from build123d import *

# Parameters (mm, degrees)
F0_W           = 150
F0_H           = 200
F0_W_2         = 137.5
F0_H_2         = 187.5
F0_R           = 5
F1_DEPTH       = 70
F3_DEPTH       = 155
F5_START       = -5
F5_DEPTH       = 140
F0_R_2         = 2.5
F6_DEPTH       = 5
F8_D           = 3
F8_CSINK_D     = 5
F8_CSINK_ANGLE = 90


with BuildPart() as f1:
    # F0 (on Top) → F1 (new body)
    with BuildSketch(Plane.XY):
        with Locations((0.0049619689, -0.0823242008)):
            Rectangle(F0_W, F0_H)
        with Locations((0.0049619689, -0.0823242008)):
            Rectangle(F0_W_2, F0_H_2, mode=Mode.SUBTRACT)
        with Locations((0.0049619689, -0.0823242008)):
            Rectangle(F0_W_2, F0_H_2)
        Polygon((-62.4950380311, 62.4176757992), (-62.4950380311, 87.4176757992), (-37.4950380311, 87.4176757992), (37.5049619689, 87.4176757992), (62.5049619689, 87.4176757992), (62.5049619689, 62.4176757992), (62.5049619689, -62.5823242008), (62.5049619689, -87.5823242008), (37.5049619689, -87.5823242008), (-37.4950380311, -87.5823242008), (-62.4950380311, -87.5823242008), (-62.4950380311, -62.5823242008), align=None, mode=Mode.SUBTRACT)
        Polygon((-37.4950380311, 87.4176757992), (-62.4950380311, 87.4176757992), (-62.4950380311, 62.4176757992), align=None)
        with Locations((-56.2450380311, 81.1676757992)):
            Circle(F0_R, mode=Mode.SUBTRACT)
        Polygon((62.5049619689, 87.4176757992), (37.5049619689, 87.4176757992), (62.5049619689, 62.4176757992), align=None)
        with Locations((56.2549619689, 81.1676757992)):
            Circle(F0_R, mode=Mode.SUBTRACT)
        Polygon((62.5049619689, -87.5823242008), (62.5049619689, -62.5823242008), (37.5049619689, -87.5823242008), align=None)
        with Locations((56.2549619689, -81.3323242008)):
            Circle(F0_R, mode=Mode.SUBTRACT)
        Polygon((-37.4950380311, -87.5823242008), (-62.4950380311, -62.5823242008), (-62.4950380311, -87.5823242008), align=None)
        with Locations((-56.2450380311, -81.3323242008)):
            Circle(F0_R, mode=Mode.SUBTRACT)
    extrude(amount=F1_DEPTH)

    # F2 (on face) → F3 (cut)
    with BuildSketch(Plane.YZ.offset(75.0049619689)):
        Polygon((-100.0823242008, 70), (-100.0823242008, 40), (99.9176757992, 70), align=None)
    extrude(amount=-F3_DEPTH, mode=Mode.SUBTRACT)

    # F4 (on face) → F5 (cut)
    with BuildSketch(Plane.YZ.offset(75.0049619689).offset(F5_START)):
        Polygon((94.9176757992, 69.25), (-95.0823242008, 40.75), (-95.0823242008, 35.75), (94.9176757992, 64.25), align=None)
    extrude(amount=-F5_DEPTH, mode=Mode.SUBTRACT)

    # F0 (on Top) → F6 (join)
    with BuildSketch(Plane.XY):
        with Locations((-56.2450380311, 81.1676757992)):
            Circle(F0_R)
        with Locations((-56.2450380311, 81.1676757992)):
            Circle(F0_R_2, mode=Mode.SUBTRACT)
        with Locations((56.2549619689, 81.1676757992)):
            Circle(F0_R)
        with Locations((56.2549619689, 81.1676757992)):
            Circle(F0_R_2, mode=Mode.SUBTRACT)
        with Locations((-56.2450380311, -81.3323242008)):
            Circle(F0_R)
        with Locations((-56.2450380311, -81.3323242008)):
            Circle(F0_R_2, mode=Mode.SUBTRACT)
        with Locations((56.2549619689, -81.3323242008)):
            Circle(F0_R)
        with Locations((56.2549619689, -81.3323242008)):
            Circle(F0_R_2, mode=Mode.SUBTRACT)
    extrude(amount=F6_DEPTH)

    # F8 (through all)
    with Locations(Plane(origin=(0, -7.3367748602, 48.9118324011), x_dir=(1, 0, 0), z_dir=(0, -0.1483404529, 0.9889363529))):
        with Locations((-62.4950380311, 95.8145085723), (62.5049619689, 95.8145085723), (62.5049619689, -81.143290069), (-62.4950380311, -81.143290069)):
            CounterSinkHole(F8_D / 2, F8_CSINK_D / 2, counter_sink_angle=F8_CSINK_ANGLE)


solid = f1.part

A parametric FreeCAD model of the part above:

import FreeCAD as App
import Part
import Sketcher
from FreeCAD import Vector

doc = App.newDocument("Part")
body = doc.addObject("PartDesign::Body", "Body")

# Sketch on XY plane
sketch1 = body.newObject("Sketcher::SketchObject", "Sketch")
sketch1.AttachmentSupport = (doc.getObject("XY_Plane"), [""])
sketch1.MapMode = "FlatFace"
sketch1.addGeometry([
    Part.LineSegment(Vector(-75, 100, 0), Vector(-75, -100, 0)),  # 0
    Part.LineSegment(Vector(-75, -100, 0), Vector(75, -100, 0)),  # 1
    Part.LineSegment(Vector(75, -100, 0), Vector(75, 100, 0)),  # 2
    Part.LineSegment(Vector(75, 100, 0), Vector(-75, 100, 0)),  # 3
    Part.Circle(Vector(-56, -81, 0), Vector(0, 0, 1), 5),  # 4
    Part.Circle(Vector(56, -81, 0), Vector(0, 0, 1), 5),  # 5
    Part.Circle(Vector(-56, 81, 0), Vector(0, 0, 1), 5),  # 6
    Part.LineSegment(Vector(-62, -63, 0), Vector(-62, 62, 0)),  # 7
    Part.LineSegment(Vector(-62, 62, 0), Vector(-37, 87, 0)),  # 8
    Part.LineSegment(Vector(-37, 87, 0), Vector(38, 87, 0)),  # 9
    Part.LineSegment(Vector(38, 87, 0), Vector(63, 62, 0)),  # 10
    Part.LineSegment(Vector(63, 62, 0), Vector(63, -63, 0)),  # 11
    Part.LineSegment(Vector(63, -63, 0), Vector(38, -88, 0)),  # 12
    Part.LineSegment(Vector(38, -88, 0), Vector(-37, -88, 0)),  # 13
    Part.LineSegment(Vector(-37, -88, 0), Vector(-62, -63, 0)),  # 14
    Part.Circle(Vector(56, 81, 0), Vector(0, 0, 1), 5),  # 15
], False)
sketch1.addConstraint([
    Sketcher.Constraint("Coincident", 0, 2, 1, 1),
    Sketcher.Constraint("Coincident", 1, 2, 2, 1),
    Sketcher.Constraint("Coincident", 2, 2, 3, 1),
    Sketcher.Constraint("Coincident", 3, 2, 0, 1),
    Sketcher.Constraint("Coincident", 7, 2, 8, 1),
    Sketcher.Constraint("Coincident", 8, 2, 9, 1),
    Sketcher.Constraint("Coincident", 9, 2, 10, 1),
    Sketcher.Constraint("Coincident", 10, 2, 11, 1),
    Sketcher.Constraint("Coincident", 11, 2, 12, 1),
    Sketcher.Constraint("Coincident", 12, 2, 13, 1),
    Sketcher.Constraint("Coincident", 13, 2, 14, 1),
    Sketcher.Constraint("Coincident", 14, 2, 7, 1),
    Sketcher.Constraint("Vertical", 0),
    Sketcher.Constraint("Horizontal", 1),
    Sketcher.Constraint("Vertical", 2),
    Sketcher.Constraint("Horizontal", 3),
    Sketcher.Constraint("Vertical", 7),
    Sketcher.Constraint("Horizontal", 9),
    Sketcher.Constraint("Vertical", 11),
    Sketcher.Constraint("Horizontal", 13),
    Sketcher.Constraint("Equal", 4, 5),
    Sketcher.Constraint("Equal", 5, 6),
    Sketcher.Constraint("Equal", 6, 15),
    Sketcher.Constraint("Perpendicular", 8, 10),
    Sketcher.Constraint("Perpendicular", 10, 12),
    Sketcher.Constraint("Perpendicular", 12, 14),
    Sketcher.Constraint("Horizontal", 4, 3, 5, 3),
    Sketcher.Constraint("Horizontal", 6, 3, 15, 3),
    Sketcher.Constraint("Horizontal", 7, 2, 10, 2),
    Sketcher.Constraint("Horizontal", 11, 2, 14, 2),
    Sketcher.Constraint("Vertical", 4, 3, 6, 3),
    Sketcher.Constraint("Vertical", 5, 3, 15, 3),
    Sketcher.Constraint("Vertical", 9, 2, 12, 2),
    Sketcher.Constraint("Vertical", 8, 2, 13, 2),
    Sketcher.Constraint("Diameter", 4, 10.0),
    Sketcher.Constraint("DistanceX", 1, 1, 1, 2, 150.0),
    Sketcher.Constraint("DistanceX", 9, 1, 9, 2, 75.0),
    Sketcher.Constraint("DistanceY", 0, 2, 0, 1, 200.0),
    Sketcher.Constraint("DistanceY", 7, 1, 7, 2, 125.0),
    Sketcher.Constraint("DistanceX", 7, 2, 8, 2, 25.0),
    Sketcher.Constraint("DistanceX", 4, 3, 5, 3, 112.5),
    Sketcher.Constraint("DistanceY", 4, 3, 6, 3, 162.5),
    Sketcher.Constraint("DistanceX", 3, 2, 7, 2, 12.5),
    Sketcher.Constraint("DistanceY", 7, 2, 3, 2, 37.5),
    Sketcher.Constraint("DistanceX", 0, 2, 4, 3, 18.75),
    Sketcher.Constraint("DistanceY", 0, 2, 4, 3, 18.75),
    Sketcher.Constraint("DistanceX", 4, 3, -1, 1, 56.245038),
    Sketcher.Constraint("DistanceY", 4, 3, -1, 1, 81.332324),
])
pad1 = body.newObject("PartDesign::Pad", "Pad")
pad1.Profile = sketch1
pad1.Length = 70

# Sketch on YZ plane
sketch2 = body.newObject("Sketcher::SketchObject", "Sketch001")
sketch2.AttachmentSupport = (doc.getObject("YZ_Plane"), [""])
sketch2.MapMode = "FlatFace"
sketch2.AttachmentOffset = App.Placement(Vector(0, 0, 75.004962), App.Rotation())
sketch2.addGeometry([
    Part.LineSegment(Vector(-100, 70, 0), Vector(-100, 40, 0)),
    Part.LineSegment(Vector(-100, 40, 0), Vector(100, 70, 0)),
    Part.LineSegment(Vector(100, 70, 0), Vector(-100, 70, 0)),
], False)
sketch2.addConstraint([
    Sketcher.Constraint("Coincident", 0, 2, 1, 1),
    Sketcher.Constraint("Coincident", 1, 2, 2, 1),
    Sketcher.Constraint("Coincident", 2, 2, 0, 1),
    Sketcher.Constraint("Vertical", 0),
    Sketcher.Constraint("Horizontal", 2),
    Sketcher.Constraint("DistanceX", 2, 2, 2, 1, 200.0),
    Sketcher.Constraint("DistanceY", 0, 2, 0, 1, 30.0),
    Sketcher.Constraint("DistanceY", -1, 1, 0, 2, 40.0),
    Sketcher.Constraint("DistanceX", 0, 2, -1, 1, 100.082324),
])
pocket1 = body.newObject("PartDesign::Pocket", "Pocket")
pocket1.Profile = sketch2
pocket1.Length = 155

# Sketch on YZ plane
sketch3 = body.newObject("Sketcher::SketchObject", "Sketch002")
sketch3.AttachmentSupport = (doc.getObject("YZ_Plane"), [""])
sketch3.MapMode = "FlatFace"
sketch3.AttachmentOffset = App.Placement(Vector(0, 0, 70.004962), App.Rotation())
sketch3.addGeometry([
    Part.LineSegment(Vector(95, 69, 0), Vector(-95, 41, 0)),
    Part.LineSegment(Vector(-95, 41, 0), Vector(-95, 36, 0)),
    Part.LineSegment(Vector(-95, 36, 0), Vector(95, 64, 0)),
    Part.LineSegment(Vector(95, 64, 0), Vector(95, 69, 0)),
], False)
sketch3.addConstraint([
    Sketcher.Constraint("Coincident", 0, 2, 1, 1),
    Sketcher.Constraint("Coincident", 1, 2, 2, 1),
    Sketcher.Constraint("Coincident", 2, 2, 3, 1),
    Sketcher.Constraint("Coincident", 3, 2, 0, 1),
    Sketcher.Constraint("Vertical", 1),
    Sketcher.Constraint("Vertical", 3),
    Sketcher.Constraint("Parallel", 0, 2),
    Sketcher.Constraint("DistanceY", 1, 2, 1, 1, 5.0),
    Sketcher.Constraint("DistanceX", 0, 2, 2, 2, 190.0),
    Sketcher.Constraint("DistanceY", 0, 2, 2, 2, 23.5),
    Sketcher.Constraint("DistanceY", -1, 1, 0, 2, 40.75),
    Sketcher.Constraint("DistanceX", 0, 2, -1, 1, 95.082324),
])
pocket2 = body.newObject("PartDesign::Pocket", "Pocket001")
pocket2.Profile = sketch3
pocket2.Length = 140

# Sketch on XY plane
sketch4 = body.newObject("Sketcher::SketchObject", "Sketch003")
sketch4.AttachmentSupport = (doc.getObject("XY_Plane"), [""])
sketch4.MapMode = "FlatFace"
sketch4.addGeometry([
    Part.Circle(Vector(-56.2, 81.2, 0), Vector(0, 0, 1), 5),  # 0
    Part.Circle(Vector(-56.2, 81.2, 0), Vector(0, 0, 1), 2.5),  # 1
    Part.Circle(Vector(56.3, 81.2, 0), Vector(0, 0, 1), 5),  # 2
    Part.Circle(Vector(56.3, 81.2, 0), Vector(0, 0, 1), 2.5),  # 3
    Part.Circle(Vector(-56.2, -81.3, 0), Vector(0, 0, 1), 5),  # 4
    Part.Circle(Vector(-56.2, -81.3, 0), Vector(0, 0, 1), 2.5),  # 5
    Part.Circle(Vector(56.3, -81.3, 0), Vector(0, 0, 1), 5),  # 6
    Part.Circle(Vector(56.3, -81.3, 0), Vector(0, 0, 1), 2.5),  # 7
], False)
sketch4.addConstraint([
    Sketcher.Constraint("Coincident", 1, 3, 0, 3),
    Sketcher.Constraint("Coincident", 3, 3, 2, 3),
    Sketcher.Constraint("Coincident", 5, 3, 4, 3),
    Sketcher.Constraint("Coincident", 7, 3, 6, 3),
    Sketcher.Constraint("Equal", 0, 2),
    Sketcher.Constraint("Equal", 1, 3),
    Sketcher.Constraint("Equal", 2, 4),
    Sketcher.Constraint("Equal", 3, 5),
    Sketcher.Constraint("Equal", 4, 6),
    Sketcher.Constraint("Equal", 5, 7),
    Sketcher.Constraint("Horizontal", 1, 3, 2, 3),
    Sketcher.Constraint("Horizontal", 5, 3, 6, 3),
    Sketcher.Constraint("Vertical", 1, 3, 4, 3),
    Sketcher.Constraint("Vertical", 3, 3, 6, 3),
    Sketcher.Constraint("Diameter", 0, 10.0),
    Sketcher.Constraint("Diameter", 1, 5.0),
    Sketcher.Constraint("DistanceX", 0, 3, 2, 3, 112.5),
    Sketcher.Constraint("DistanceY", 4, 3, 0, 3, 162.5),
    Sketcher.Constraint("DistanceX", 0, 3, -1, 1, 56.245038),
    Sketcher.Constraint("DistanceY", -1, 1, 0, 3, 81.167676),
])
pad2 = body.newObject("PartDesign::Pad", "Pad001")
pad2.Profile = sketch4
pad2.Length = 5

# Sketch on an angled plane
sketch5 = body.newObject("Sketcher::SketchObject", "Sketch004")
sketch5.Placement = App.Placement(Vector(0, -7.336775, 48.911832), App.Rotation(Vector(1, 0, 0), Vector(0, 0.988936353, 0.148340453), Vector(0, -0.148340453, 0.988936353), "ZXY"))
sketch5.addGeometry([
    Part.Circle(Vector(-62.5, 95.8, 0), Vector(0, 0, 1), 1.5),
    Part.Circle(Vector(62.5, 95.8, 0), Vector(0, 0, 1), 1.5),
    Part.Circle(Vector(62.5, -81.1, 0), Vector(0, 0, 1), 1.5),
    Part.Circle(Vector(-62.5, -81.1, 0), Vector(0, 0, 1), 1.5),
], False)
sketch5.addConstraint([
    Sketcher.Constraint("Equal", 0, 1),
    Sketcher.Constraint("Equal", 1, 2),
    Sketcher.Constraint("Equal", 2, 3),
    Sketcher.Constraint("Horizontal", 0, 3, 1, 3),
    Sketcher.Constraint("Horizontal", 2, 3, 3, 3),
    Sketcher.Constraint("Vertical", 1, 3, 2, 3),
    Sketcher.Constraint("Vertical", 0, 3, 3, 3),
    Sketcher.Constraint("Diameter", 0, 3.0),
    Sketcher.Constraint("DistanceX", 0, 3, 1, 3, 125.0),
    Sketcher.Constraint("DistanceY", 2, 3, 1, 3, 176.957799),
    Sketcher.Constraint("DistanceX", 0, 3, -1, 1, 62.495038),
    Sketcher.Constraint("DistanceY", -1, 1, 0, 3, 95.814509),
])
doc.recompute()
hole = body.newObject("PartDesign::Hole", "Hole")
hole.Profile = sketch5
hole.ThreadType = "None"
hole.Diameter = 3
hole.DepthType = "ThroughAll"
hole.HoleCutType = "Countersink"
hole.HoleCutDiameter = 5
hole.HoleCutCountersinkAngle = 90

doc.recompute()
